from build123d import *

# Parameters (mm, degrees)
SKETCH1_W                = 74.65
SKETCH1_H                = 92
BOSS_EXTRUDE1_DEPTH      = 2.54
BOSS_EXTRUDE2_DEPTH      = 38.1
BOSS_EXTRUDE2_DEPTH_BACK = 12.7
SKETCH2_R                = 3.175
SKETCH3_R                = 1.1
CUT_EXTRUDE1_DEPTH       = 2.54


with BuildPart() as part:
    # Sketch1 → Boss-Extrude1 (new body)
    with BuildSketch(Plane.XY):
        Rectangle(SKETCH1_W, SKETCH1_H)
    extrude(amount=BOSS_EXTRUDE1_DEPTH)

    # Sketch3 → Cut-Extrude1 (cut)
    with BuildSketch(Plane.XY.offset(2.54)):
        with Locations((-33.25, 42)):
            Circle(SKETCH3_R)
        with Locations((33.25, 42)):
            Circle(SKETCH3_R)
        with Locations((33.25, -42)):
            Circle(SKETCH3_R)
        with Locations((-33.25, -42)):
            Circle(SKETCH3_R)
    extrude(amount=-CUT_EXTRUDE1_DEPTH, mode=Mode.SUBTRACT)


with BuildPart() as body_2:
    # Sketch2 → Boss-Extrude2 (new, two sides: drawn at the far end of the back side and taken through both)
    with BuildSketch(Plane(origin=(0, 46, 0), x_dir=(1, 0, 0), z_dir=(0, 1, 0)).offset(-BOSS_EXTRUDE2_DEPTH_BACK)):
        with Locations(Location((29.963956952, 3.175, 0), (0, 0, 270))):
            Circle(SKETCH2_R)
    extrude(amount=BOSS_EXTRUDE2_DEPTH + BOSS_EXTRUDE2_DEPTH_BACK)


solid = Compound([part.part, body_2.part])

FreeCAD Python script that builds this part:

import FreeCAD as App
import Part
import Sketcher

V = App.Vector
Q = App.Units.Quantity


def add_polygon(sketch, points):
    """Adds a closed chain of lines whose ends are joined by coincident constraints."""
    first, n = sketch.GeometryCount, len(points)
    for a, b in zip(points, points[1:] + points[:1]):
        sketch.addGeometry(Part.LineSegment(App.Vector(*a, 0), App.Vector(*b, 0)), False)
    for i in range(n):
        sketch.addConstraint(Sketcher.Constraint("Coincident", first + i, 2, first + (i + 1) % n, 1))

doc = App.newDocument("Part")
body = doc.addObject("PartDesign::Body", "Body")

# Sketch on XY plane
sketch1 = body.newObject("Sketcher::SketchObject", "Sketch")
sketch1.AttachmentSupport = (doc.getObject("XY_Plane"), [""])
sketch1.MapMode = "FlatFace"
add_polygon(sketch1, [(-37, 46), (-37, -46), (37, -46), (37, 46)])  # lines 0-3
sketch1.addConstraint([
    Sketcher.Constraint("Vertical", 0),
    Sketcher.Constraint("Horizontal", 1),
    Sketcher.Constraint("Vertical", 2),
    Sketcher.Constraint("Horizontal", 3),
    Sketcher.Constraint("Symmetric", 0, 2, 2, 2, -1, 1),
    Sketcher.Constraint("DistanceX", 1, 1, 1, 2, 74.65),
    Sketcher.Constraint("DistanceY", 0, 2, 0, 1, 92.0),
])
pad1 = body.newObject("PartDesign::Pad", "Pad")
pad1.Profile = sketch1
pad1.Length = Q("0.1 in")

# Sketch on XY plane
sketch2 = body.newObject("Sketcher::SketchObject", "Sketch001")
sketch2.AttachmentSupport = (doc.getObject("XY_Plane"), [""])
sketch2.MapMode = "FlatFace"
sketch2.AttachmentOffset = App.Placement(V(0, 0, 0.1 * 25.4), App.Rotation())
sketch2.addGeometry([
    Part.Circle(V(-33.2, 42, 0), V(0, 0, 1), 1.1),
    Part.Circle(V(33.2, 42, 0), V(0, 0, 1), 1.1),
    Part.Circle(V(33.2, -42, 0), V(0, 0, 1), 1.1),
    Part.Circle(V(-33.2, -42, 0), V(0, 0, 1), 1.1),
], False)
sketch2.addConstraint([
    Sketcher.Constraint("Equal", 0, 1),
    Sketcher.Constraint("Equal", 1, 2),
    Sketcher.Constraint("Equal", 2, 3),
    Sketcher.Constraint("Symmetric", 0, 3, 2, 3, -1, 1),
    Sketcher.Constraint("Symmetric", 1, 3, 3, 3, -1, 1),
    Sketcher.Constraint("Symmetric", 0, 3, 1, 3, -2),
    Sketcher.Constraint("Diameter", 0, 2.2),
    Sketcher.Constraint("DistanceX", 0, 3, -1, 1, 33.25),
    Sketcher.Constraint("DistanceY", -1, 1, 0, 3, 42.0),
])
pocket1 = body.newObject("PartDesign::Pocket", "Pocket")
pocket1.Profile = sketch2
pocket1.Length = Q("0.1 in")
body2 = doc.addObject("PartDesign::Body", "Body001")

# Sketch on XZ plane
sketch3 = body2.newObject("Sketcher::SketchObject", "Sketch002")
sketch3.AttachmentSupport = (doc.getObject("XZ_Plane001"), [""])
sketch3.MapMode = "FlatFace"
sketch3.AttachmentOffset = App.Placement(V(0, 0, -46), App.Rotation())
sketch3.addGeometry(Part.Circle(V(30, -3.2, 0), V(0, 0, 1), 3.2), False)
sketch3.addConstraint([
    Sketcher.Constraint("Diameter", 0, Q("0.25 in")),
    Sketcher.Constraint("DistanceY", 0, 3, -1, 1, Q("0.125 in")),
    Sketcher.Constraint("DistanceX", -1, 1, 0, 3, 29.963957),
])
pad2 = body2.newObject("PartDesign::Pad", "Pad001")
pad2.Profile = sketch3
pad2.Type = "TwoLengths"
pad2.Length = Q("1.5 in")
pad2.Length2 = Q("0.5 in")
pad2.Reversed = True

doc.recompute()
